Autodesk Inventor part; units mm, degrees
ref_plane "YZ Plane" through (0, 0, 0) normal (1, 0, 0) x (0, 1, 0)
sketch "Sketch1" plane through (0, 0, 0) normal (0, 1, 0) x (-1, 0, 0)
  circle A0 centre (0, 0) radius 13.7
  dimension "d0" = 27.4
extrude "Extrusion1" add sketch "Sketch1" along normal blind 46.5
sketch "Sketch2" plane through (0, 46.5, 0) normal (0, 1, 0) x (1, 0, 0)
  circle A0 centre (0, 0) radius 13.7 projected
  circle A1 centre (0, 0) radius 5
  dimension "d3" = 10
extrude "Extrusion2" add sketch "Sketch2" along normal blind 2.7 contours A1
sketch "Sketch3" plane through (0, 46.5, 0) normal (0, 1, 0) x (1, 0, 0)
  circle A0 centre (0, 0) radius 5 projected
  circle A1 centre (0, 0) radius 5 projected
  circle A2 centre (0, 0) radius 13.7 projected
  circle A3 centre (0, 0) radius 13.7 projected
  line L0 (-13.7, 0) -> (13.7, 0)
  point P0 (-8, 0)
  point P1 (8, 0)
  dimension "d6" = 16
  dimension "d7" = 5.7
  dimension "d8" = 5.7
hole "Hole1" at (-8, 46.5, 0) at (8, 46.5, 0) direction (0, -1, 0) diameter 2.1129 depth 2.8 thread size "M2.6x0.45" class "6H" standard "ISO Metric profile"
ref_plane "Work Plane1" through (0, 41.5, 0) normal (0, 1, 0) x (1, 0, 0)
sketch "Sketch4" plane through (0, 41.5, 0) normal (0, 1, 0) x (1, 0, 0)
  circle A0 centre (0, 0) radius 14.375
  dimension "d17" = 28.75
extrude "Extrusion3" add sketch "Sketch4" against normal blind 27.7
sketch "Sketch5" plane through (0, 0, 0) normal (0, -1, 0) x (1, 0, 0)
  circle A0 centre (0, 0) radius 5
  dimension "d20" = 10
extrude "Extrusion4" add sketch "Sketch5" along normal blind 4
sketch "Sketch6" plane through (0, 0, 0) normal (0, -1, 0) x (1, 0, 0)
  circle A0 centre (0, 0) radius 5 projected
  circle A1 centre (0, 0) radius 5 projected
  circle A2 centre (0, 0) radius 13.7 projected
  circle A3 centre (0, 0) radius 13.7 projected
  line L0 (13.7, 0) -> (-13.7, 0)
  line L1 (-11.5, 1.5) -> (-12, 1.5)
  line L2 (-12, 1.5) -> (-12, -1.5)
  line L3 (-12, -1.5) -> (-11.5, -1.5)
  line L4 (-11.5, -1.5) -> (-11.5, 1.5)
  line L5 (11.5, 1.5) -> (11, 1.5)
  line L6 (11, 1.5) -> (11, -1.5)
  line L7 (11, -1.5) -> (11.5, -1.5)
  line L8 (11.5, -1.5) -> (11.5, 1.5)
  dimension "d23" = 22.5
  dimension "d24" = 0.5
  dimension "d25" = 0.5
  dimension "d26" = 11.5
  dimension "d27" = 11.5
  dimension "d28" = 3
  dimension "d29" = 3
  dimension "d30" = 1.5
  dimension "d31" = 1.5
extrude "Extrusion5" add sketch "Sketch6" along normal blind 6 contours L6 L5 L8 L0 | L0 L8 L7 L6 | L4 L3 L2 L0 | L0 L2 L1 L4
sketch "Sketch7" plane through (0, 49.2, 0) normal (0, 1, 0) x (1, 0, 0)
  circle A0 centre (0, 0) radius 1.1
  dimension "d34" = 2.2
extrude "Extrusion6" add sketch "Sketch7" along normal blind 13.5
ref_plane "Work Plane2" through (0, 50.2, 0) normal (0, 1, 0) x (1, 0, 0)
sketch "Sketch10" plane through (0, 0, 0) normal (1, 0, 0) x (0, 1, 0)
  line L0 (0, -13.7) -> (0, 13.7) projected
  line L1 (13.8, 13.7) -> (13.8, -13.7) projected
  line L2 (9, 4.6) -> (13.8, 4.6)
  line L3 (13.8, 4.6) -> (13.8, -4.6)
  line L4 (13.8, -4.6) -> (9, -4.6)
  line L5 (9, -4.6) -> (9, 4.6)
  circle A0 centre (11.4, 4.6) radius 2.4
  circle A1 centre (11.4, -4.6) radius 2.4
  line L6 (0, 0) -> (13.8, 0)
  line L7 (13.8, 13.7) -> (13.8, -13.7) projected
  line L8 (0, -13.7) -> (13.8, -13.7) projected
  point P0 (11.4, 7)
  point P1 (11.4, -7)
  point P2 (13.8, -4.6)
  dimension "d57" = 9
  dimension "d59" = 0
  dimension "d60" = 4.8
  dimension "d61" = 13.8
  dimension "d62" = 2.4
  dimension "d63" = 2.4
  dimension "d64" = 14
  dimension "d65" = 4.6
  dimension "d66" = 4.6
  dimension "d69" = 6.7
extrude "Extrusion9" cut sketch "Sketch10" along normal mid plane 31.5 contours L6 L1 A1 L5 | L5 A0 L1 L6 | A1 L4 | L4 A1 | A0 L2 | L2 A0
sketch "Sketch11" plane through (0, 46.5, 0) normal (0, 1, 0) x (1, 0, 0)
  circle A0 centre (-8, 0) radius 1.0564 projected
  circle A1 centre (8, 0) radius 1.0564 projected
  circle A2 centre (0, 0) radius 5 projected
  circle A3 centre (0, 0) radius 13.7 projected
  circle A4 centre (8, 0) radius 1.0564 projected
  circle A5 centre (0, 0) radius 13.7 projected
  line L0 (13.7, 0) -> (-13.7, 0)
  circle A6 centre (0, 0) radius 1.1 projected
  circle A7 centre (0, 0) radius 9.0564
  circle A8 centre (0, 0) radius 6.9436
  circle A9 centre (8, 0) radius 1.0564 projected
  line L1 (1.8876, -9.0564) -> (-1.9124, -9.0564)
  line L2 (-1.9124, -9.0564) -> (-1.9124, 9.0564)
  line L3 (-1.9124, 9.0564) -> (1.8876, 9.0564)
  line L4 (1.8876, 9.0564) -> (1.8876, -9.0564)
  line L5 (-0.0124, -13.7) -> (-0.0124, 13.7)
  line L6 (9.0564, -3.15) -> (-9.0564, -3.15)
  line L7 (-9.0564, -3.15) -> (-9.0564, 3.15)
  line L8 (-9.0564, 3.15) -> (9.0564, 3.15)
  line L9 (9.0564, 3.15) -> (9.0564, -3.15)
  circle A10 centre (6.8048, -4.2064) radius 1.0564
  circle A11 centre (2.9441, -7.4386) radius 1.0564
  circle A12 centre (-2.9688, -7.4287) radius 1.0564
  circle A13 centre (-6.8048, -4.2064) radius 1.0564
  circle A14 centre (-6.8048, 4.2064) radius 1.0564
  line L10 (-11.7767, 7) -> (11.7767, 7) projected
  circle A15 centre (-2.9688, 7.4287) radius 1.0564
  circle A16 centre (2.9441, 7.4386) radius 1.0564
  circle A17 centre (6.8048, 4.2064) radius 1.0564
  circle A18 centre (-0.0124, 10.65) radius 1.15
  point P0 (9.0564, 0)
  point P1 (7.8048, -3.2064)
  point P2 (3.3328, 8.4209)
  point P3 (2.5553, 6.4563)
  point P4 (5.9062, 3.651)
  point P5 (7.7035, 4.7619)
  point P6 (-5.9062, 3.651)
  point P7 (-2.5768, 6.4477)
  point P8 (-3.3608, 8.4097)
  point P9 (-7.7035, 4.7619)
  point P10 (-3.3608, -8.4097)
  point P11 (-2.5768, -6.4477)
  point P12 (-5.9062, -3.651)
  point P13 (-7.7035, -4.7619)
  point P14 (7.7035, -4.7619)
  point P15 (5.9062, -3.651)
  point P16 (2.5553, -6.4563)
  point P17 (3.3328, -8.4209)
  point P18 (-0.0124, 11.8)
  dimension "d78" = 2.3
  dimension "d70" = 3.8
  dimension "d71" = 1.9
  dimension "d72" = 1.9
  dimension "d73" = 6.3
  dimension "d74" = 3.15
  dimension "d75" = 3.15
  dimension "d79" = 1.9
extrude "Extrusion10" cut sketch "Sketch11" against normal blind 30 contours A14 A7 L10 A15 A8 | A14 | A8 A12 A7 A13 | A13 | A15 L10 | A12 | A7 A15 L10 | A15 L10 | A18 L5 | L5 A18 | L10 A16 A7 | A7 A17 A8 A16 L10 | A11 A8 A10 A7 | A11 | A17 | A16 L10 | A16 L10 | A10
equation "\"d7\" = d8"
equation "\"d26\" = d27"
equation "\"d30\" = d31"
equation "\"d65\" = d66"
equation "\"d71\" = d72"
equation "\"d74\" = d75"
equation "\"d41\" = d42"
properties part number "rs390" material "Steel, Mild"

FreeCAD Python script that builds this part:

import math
import FreeCAD as App
import Part
import Sketcher

V = App.Vector
Q = App.Units.Quantity

doc = App.newDocument("Part")
params = doc.addObject("Spreadsheet::Sheet", "Params")
for row, (alias, value) in enumerate([
    ("sketch1_diameter", "27.4 mm"),
    ("pad1_length", "46.5 mm"),
    ("sketch2_diameter", "10 mm"),
    ("pad2_length", "2.7 mm"),
    ("hole_diameter", "2.1129 mm"),
    ("hole_depth", "2.8 mm"),
    ("sketch4_diameter", "28.75 mm"),
    ("pad3_length", "27.7 mm"),
    ("sketch5_diameter", "10 mm"),
    ("pad4_length", "4 mm"),
    ("sketch6_height", "3 mm"),
    ("sketch6_width", "0.5 mm"),
    ("pad5_length", "6 mm"),
    ("sketch7_diameter", "2.2 mm"),
    ("pad6_length", "13.5 mm"),
    ("sketch8_radius", "2.4 mm"),
    ("pocket1_length", "31.5 mm"),
    ("sketch9_diameter", "2.3 mm"),
    ("pocket2_length", "30 mm"),
], start=1):
    params.set(f"A{row}", alias)
    params.set(f"B{row}", "=" + value)
    params.setAlias(f"B{row}", alias)

body = doc.addObject("PartDesign::Body", "Body")

# Sketch on XZ plane
sketch1 = body.newObject("Sketcher::SketchObject", "Sketch")
sketch1.AttachmentSupport = (doc.getObject("XZ_Plane"), [""])
sketch1.MapMode = "FlatFace"
sketch1.addGeometry(Part.Circle(V(0, 0, 0), V(0, 0, 1), 13.7), False)
sketch1.addConstraint(Sketcher.Constraint("Coincident", 0, 3, -1, 1))
sketch1.addConstraint(Sketcher.Constraint("Diameter", 0, Q("27.4 mm")))
sketch1.setExpression("Constraints[1]", "Params.sketch1_diameter")
pad1 = body.newObject("PartDesign::Pad", "Pad")
pad1.Profile = sketch1
pad1.setExpression("Length", "Params.pad1_length")
pad1.Reversed = True

# Sketch on XZ plane
sketch2 = body.newObject("Sketcher::SketchObject", "Sketch001")
sketch2.AttachmentSupport = (doc.getObject("XZ_Plane"), [""])
sketch2.MapMode = "FlatFace"
sketch2.AttachmentOffset = App.Placement(V(0, 0, -46.5), App.Rotation())
sketch2.addGeometry(Part.Circle(V(0, 0, 0), V(0, 0, 1), 5), False)
sketch2.addConstraint(Sketcher.Constraint("Coincident", 0, 3, -1, 1))
sketch2.addConstraint(Sketcher.Constraint("Diameter", 0, Q("10 mm")))
sketch2.setExpression("Constraints[1]", "Params.sketch2_diameter")
pad2 = body.newObject("PartDesign::Pad", "Pad001")
pad2.Profile = sketch2
pad2.setExpression("Length", "Params.pad2_length")
pad2.Reversed = True

# Sketch on XZ plane
sketch3 = body.newObject("Sketcher::SketchObject", "Sketch002")
sketch3.AttachmentSupport = (doc.getObject("XZ_Plane"), [""])
sketch3.MapMode = "FlatFace"
sketch3.AttachmentOffset = App.Placement(V(0, 0, -46.5), App.Rotation())
sketch3.addGeometry(Part.Circle(V(-8, 0, 0), V(0, 0, 1), 1.05645), False)
sketch3.addGeometry(Part.Circle(V(8, 0, 0), V(0, 0, 1), 1.05645), False)
sketch3.addConstraint(Sketcher.Constraint("Equal", 0, 1))
sketch3.addConstraint(Sketcher.Constraint("Symmetric", 0, 3, 1, 3, -1, 1))
sketch3.addConstraint(Sketcher.Constraint("PointOnObject", 0, 3, -1))
sketch3.addConstraint(Sketcher.Constraint("Diameter", 0, Q("2.113 mm")))
sketch3.addConstraint(Sketcher.Constraint("DistanceX", 0, 3, -1, 1, Q("8 mm")))
doc.recompute()
hole = body.newObject("PartDesign::Hole", "Hole")
hole.Profile = sketch3
hole.ThreadType = "None"
hole.setExpression("Diameter", "Params.hole_diameter")
hole.DepthType = "Dimension"
hole.setExpression("Depth", "Params.hole_depth")
hole.DrillPoint = "Flat"
hole.Reversed = True

# Sketch on XZ plane
sketch4 = body.newObject("Sketcher::SketchObject", "Sketch003")
sketch4.AttachmentSupport = (doc.getObject("XZ_Plane"), [""])
sketch4.MapMode = "FlatFace"
sketch4.AttachmentOffset = App.Placement(V(0, 0, -41.5), App.Rotation())
sketch4.addGeometry(Part.Circle(V(0, 0, 0), V(0, 0, 1), 14.375), False)
sketch4.addConstraint(Sketcher.Constraint("Coincident", 0, 3, -1, 1))
sketch4.addConstraint(Sketcher.Constraint("Diameter", 0, Q("28.75 mm")))
sketch4.setExpression("Constraints[1]", "Params.sketch4_diameter")
pad3 = body.newObject("PartDesign::Pad", "Pad002")
pad3.Profile = sketch4
pad3.setExpression("Length", "Params.pad3_length")

# Sketch on XZ plane
sketch5 = body.newObject("Sketcher::SketchObject", "Sketch004")
sketch5.AttachmentSupport = (doc.getObject("XZ_Plane"), [""])
sketch5.MapMode = "FlatFace"
sketch5.addGeometry(Part.Circle(V(0, 0, 0), V(0, 0, 1), 5), False)
sketch5.addConstraint(Sketcher.Constraint("Coincident", 0, 3, -1, 1))
sketch5.addConstraint(Sketcher.Constraint("Diameter", 0, Q("10 mm")))
sketch5.setExpression("Constraints[1]", "Params.sketch5_diameter")
pad4 = body.newObject("PartDesign::Pad", "Pad003")
pad4.Profile = sketch5
pad4.setExpression("Length", "Params.pad4_length")

# Sketch on XZ plane
sketch6 = body.newObject("Sketcher::SketchObject", "Sketch005")
sketch6.AttachmentSupport = (doc.getObject("XZ_Plane"), [""])
sketch6.MapMode = "FlatFace"
sketch6.addGeometry(Part.LineSegment(V(11, 1.5, 0), V(11, -1.5, 0)), False)
sketch6.addGeometry(Part.LineSegment(V(11, -1.5, 0), V(11.5, -1.5, 0)), False)
sketch6.addGeometry(Part.LineSegment(V(11.5, -1.5, 0), V(11.5, 1.5, 0)), False)
sketch6.addGeometry(Part.LineSegment(V(11.5, 1.5, 0), V(11, 1.5, 0)), False)
sketch6.addGeometry(Part.LineSegment(V(-11.5, -1.5, 0), V(-11.5, 1.5, 0)), False)
sketch6.addGeometry(Part.LineSegment(V(-11.5, 1.5, 0), V(-12, 1.5, 0)), False)
sketch6.addGeometry(Part.LineSegment(V(-12, 1.5, 0), V(-12, -1.5, 0)), False)
sketch6.addGeometry(Part.LineSegment(V(-12, -1.5, 0), V(-11.5, -1.5, 0)), False)
sketch6.addConstraint(Sketcher.Constraint("Coincident", 0, 2, 1, 1))
sketch6.addConstraint(Sketcher.Constraint("Coincident", 1, 2, 2, 1))
sketch6.addConstraint(Sketcher.Constraint("Coincident", 2, 2, 3, 1))
sketch6.addConstraint(Sketcher.Constraint("Coincident", 3, 2, 0, 1))
sketch6.addConstraint(Sketcher.Constraint("Coincident", 4, 2, 5, 1))
sketch6.addConstraint(Sketcher.Constraint("Coincident", 5, 2, 6, 1))
sketch6.addConstraint(Sketcher.Constraint("Coincident", 6, 2, 7, 1))
sketch6.addConstraint(Sketcher.Constraint("Coincident", 7, 2, 4, 1))
sketch6.addConstraint(Sketcher.Constraint("Vertical", 0))
sketch6.addConstraint(Sketcher.Constraint("Horizontal", 1))
sketch6.addConstraint(Sketcher.Constraint("Vertical", 2))
sketch6.addConstraint(Sketcher.Constraint("Horizontal", 3))
sketch6.addConstraint(Sketcher.Constraint("Vertical", 4))
sketch6.addConstraint(Sketcher.Constraint("Horizontal", 5))
sketch6.addConstraint(Sketcher.Constraint("Vertical", 6))
sketch6.addConstraint(Sketcher.Constraint("Horizontal", 7))
sketch6.addConstraint(Sketcher.Constraint("Symmetric", 1, 2, 4, 2, -1, 1))
sketch6.addConstraint(Sketcher.Constraint("Horizontal", 3, 2, 4, 2))
sketch6.addConstraint(Sketcher.Constraint("Horizontal", 1, 2, 6, 2))
sketch6.addConstraint(Sketcher.Constraint("Equal", 3, 5))
sketch6.addConstraint(Sketcher.Constraint("DistanceY", 0, 2, 0, 1, Q("3 mm")))
sketch6.addConstraint(Sketcher.Constraint("DistanceX", 1, 1, 1, 2, Q("0.5 mm")))
sketch6.addConstraint(Sketcher.Constraint("DistanceX", -1, 1, 1, 2, Q("11.5 mm")))
sketch6.setExpression("Constraints[20]", "Params.sketch6_height")
sketch6.setExpression("Constraints[21]", "Params.sketch6_width")
pad5 = body.newObject("PartDesign::Pad", "Pad004")
pad5.Profile = sketch6
pad5.setExpression("Length", "Params.pad5_length")

# Sketch on XZ plane
sketch7 = body.newObject("Sketcher::SketchObject", "Sketch006")
sketch7.AttachmentSupport = (doc.getObject("XZ_Plane"), [""])
sketch7.MapMode = "FlatFace"
sketch7.AttachmentOffset = App.Placement(V(0, 0, -49.2), App.Rotation())
sketch7.addGeometry(Part.Circle(V(0, 0, 0), V(0, 0, 1), 1.1), False)
sketch7.addConstraint(Sketcher.Constraint("Coincident", 0, 3, -1, 1))
sketch7.addConstraint(Sketcher.Constraint("Diameter", 0, Q("2.2 mm")))
sketch7.setExpression("Constraints[1]", "Params.sketch7_diameter")
pad6 = body.newObject("PartDesign::Pad", "Pad005")
pad6.Profile = sketch7
pad6.setExpression("Length", "Params.pad6_length")
pad6.Reversed = True

# Sketch on YZ plane
sketch8 = body.newObject("Sketcher::SketchObject", "Sketch007")
sketch8.AttachmentSupport = (doc.getObject("YZ_Plane"), [""])
sketch8.MapMode = "FlatFace"
sketch8.addGeometry(Part.LineSegment(V(13.8, -4.6, 0), V(13.8, 4.6, 0)), False)
sketch8.addGeometry(Part.ArcOfCircle(Part.Circle(V(11.4, 4.6, 0), V(0, 0, 1), 2.4), math.radians(0), math.radians(180)), False)
sketch8.addGeometry(Part.LineSegment(V(9, 4.6, 0), V(9, -4.6, 0)), False)
sketch8.addGeometry(Part.ArcOfCircle(Part.Circle(V(11.4, -4.6, 0), V(0, 0, 1), 2.4), math.radians(180), math.radians(360)), False)
sketch8.addConstraint(Sketcher.Constraint("Tangent", 0, 2, 1, 1))
sketch8.addConstraint(Sketcher.Constraint("Tangent", 1, 2, 2, 1))
sketch8.addConstraint(Sketcher.Constraint("Tangent", 2, 2, 3, 1))
sketch8.addConstraint(Sketcher.Constraint("Tangent", 3, 2, 0, 1))
sketch8.addConstraint(Sketcher.Constraint("Vertical", 0))
sketch8.addConstraint(Sketcher.Constraint("Vertical", 2))
sketch8.addConstraint(Sketcher.Constraint("Radius", 1, Q("2.4 mm")))
sketch8.addConstraint(Sketcher.Constraint("DistanceX", -1, 1, 1, 2, Q("9 mm")))
sketch8.addConstraint(Sketcher.Constraint("DistanceY", -1, 1, 1, 3, Q("4.6 mm")))
sketch8.addConstraint(Sketcher.Constraint("DistanceY", 3, 3, -1, 1, Q("4.6 mm")))
sketch8.setExpression("Constraints[6]", "Params.sketch8_radius")
pocket1 = body.newObject("PartDesign::Pocket", "Pocket")
pocket1.Profile = sketch8
pocket1.setExpression("Length", "Params.pocket1_length")
pocket1.Midplane = True

# Sketch on XZ plane
sketch9 = body.newObject("Sketcher::SketchObject", "Sketch008")
sketch9.AttachmentSupport = (doc.getObject("XZ_Plane"), [""])
sketch9.MapMode = "FlatFace"
sketch9.AttachmentOffset = App.Placement(V(0, 0, -46.5), App.Rotation())
sketch9.addGeometry(Part.ArcOfCircle(Part.Circle(V(-6.8048, -4.2064, 0), V(0, 0, 1), 1.0564), math.radians(31.722362), math.radians(211.722361)), False)
sketch9.addGeometry(Part.ArcOfCircle(Part.Circle(V(0, 0, 0), V(0, 0, 1), 6.9436), math.radians(-148.277638), math.radians(-111.783588)), False)
sketch9.addGeometry(Part.ArcOfCircle(Part.Circle(V(-2.9688, -7.4287, 0), V(0, 0, 1), 1.0564), math.radians(-111.783591), math.radians(68.216412)), False)
sketch9.addGeometry(Part.ArcOfCircle(Part.Circle(V(0, 0, 0), V(0, 0, 1), 9.0564), math.radians(-148.277638), math.radians(-111.783588)), False)
sketch9.addGeometry(Part.ArcOfCircle(Part.Circle(V(0, 0, 0), V(0, 0, 1), 6.9436), math.radians(111.783588), math.radians(148.277638)), False)
sketch9.addGeometry(Part.ArcOfCircle(Part.Circle(V(-6.8048, 4.2064, 0), V(0, 0, 1), 1.0564), math.radians(148.277637), math.radians(328.277638)), False)
sketch9.addGeometry(Part.ArcOfCircle(Part.Circle(V(0, 0, 0), V(0, 0, 1), 9.0564), math.radians(111.783588), math.radians(148.277637)), False)
sketch9.addGeometry(Part.ArcOfCircle(Part.Circle(V(-2.9688, 7.4287, 0), V(0, 0, 1), 1.0564), math.radians(-68.216412), math.radians(111.783585)), False)
sketch9.addGeometry(Part.Circle(V(-0.0124, -10.65, 0), V(0, 0, 1), 1.15), False)
sketch9.addGeometry(Part.ArcOfCircle(Part.Circle(V(2.9441, -7.4386, 0), V(0, 0, 1), 1.0564), math.radians(111.593007), math.radians(291.593007)), False)
sketch9.addGeometry(Part.ArcOfCircle(Part.Circle(V(0, 0, 0), V(0, 0, 1), 6.9436), math.radians(-68.406993), math.radians(-31.722362)), False)
sketch9.addGeometry(Part.ArcOfCircle(Part.Circle(V(6.8048, -4.2064, 0), V(0, 0, 1), 1.0564), math.radians(-31.722363), math.radians(148.277638)), False)
sketch9.addGeometry(Part.ArcOfCircle(Part.Circle(V(0, 0, 0), V(0, 0, 1), 9.0564), math.radians(-68.406993), math.radians(-31.722363)), False)
sketch9.addGeometry(Part.ArcOfCircle(Part.Circle(V(0, 0, 0), V(0, 0, 1), 6.9436), math.radians(31.722362), math.radians(68.406992)), False)
sketch9.addGeometry(Part.ArcOfCircle(Part.Circle(V(2.9441, 7.4386, 0), V(0, 0, 1), 1.0564), math.radians(68.406993), math.radians(248.406993)), False)
sketch9.addGeometry(Part.ArcOfCircle(Part.Circle(V(0, 0, 0), V(0, 0, 1), 9.0564), math.radians(31.722362), math.radians(68.406993)), False)
sketch9.addGeometry(Part.ArcOfCircle(Part.Circle(V(6.8048, 4.2064, 0), V(0, 0, 1), 1.0564), math.radians(-148.277638), math.radians(31.722362)), False)
sketch9.addConstraint(Sketcher.Constraint("Tangent", 0, 1, 1, 1))
sketch9.addConstraint(Sketcher.Constraint("Tangent", 1, 2, 2, 2))
sketch9.addConstraint(Sketcher.Constraint("Tangent", 2, 1, 3, 2))
sketch9.addConstraint(Sketcher.Constraint("Tangent", 3, 1, 0, 2))
sketch9.addConstraint(Sketcher.Constraint("Tangent", 4, 2, 5, 2))
sketch9.addConstraint(Sketcher.Constraint("Tangent", 5, 1, 6, 2))
sketch9.addConstraint(Sketcher.Constraint("Tangent", 6, 1, 7, 2))
sketch9.addConstraint(Sketcher.Constraint("Tangent", 7, 1, 4, 1))
sketch9.addConstraint(Sketcher.Constraint("Tangent", 9, 1, 10, 1))
sketch9.addConstraint(Sketcher.Constraint("Tangent", 10, 2, 11, 2))
sketch9.addConstraint(Sketcher.Constraint("Tangent", 11, 1, 12, 2))
sketch9.addConstraint(Sketcher.Constraint("Tangent", 12, 1, 9, 2))
sketch9.addConstraint(Sketcher.Constraint("Tangent", 13, 2, 14, 2))
sketch9.addConstraint(Sketcher.Constraint("Tangent", 14, 1, 15, 2))
sketch9.addConstraint(Sketcher.Constraint("Tangent", 15, 1, 16, 2))
sketch9.addConstraint(Sketcher.Constraint("Tangent", 16, 1, 13, 1))
sketch9.addConstraint(Sketcher.Constraint("Coincident", 1, 3, -1, 1))
sketch9.addConstraint(Sketcher.Constraint("Coincident", 3, 3, -1, 1))
sketch9.addConstraint(Sketcher.Constraint("Coincident", 4, 3, -1, 1))
sketch9.addConstraint(Sketcher.Constraint("Coincident", 6, 3, -1, 1))
sketch9.addConstraint(Sketcher.Constraint("Coincident", 10, 3, -1, 1))
sketch9.addConstraint(Sketcher.Constraint("Coincident", 12, 3, -1, 1))
sketch9.addConstraint(Sketcher.Constraint("Coincident", 13, 3, -1, 1))
sketch9.addConstraint(Sketcher.Constraint("Coincident", 15, 3, -1, 1))
sketch9.addConstraint(Sketcher.Constraint("Equal", 1, 4))
sketch9.addConstraint(Sketcher.Constraint("Equal", 2, 5))
sketch9.addConstraint(Sketcher.Constraint("Equal", 7, 9))
sketch9.addConstraint(Sketcher.Constraint("Equal", 4, 10))
sketch9.addConstraint(Sketcher.Constraint("Equal", 10, 13))
sketch9.addConstraint(Sketcher.Constraint("Equal", 11, 14))
sketch9.addConstraint(Sketcher.Constraint("Horizontal", 0, 3, 11, 3))
sketch9.addConstraint(Sketcher.Constraint("Horizontal", 5, 3, 16, 3))
sketch9.addConstraint(Sketcher.Constraint("Vertical", 0, 3, 5, 3))
sketch9.addConstraint(Sketcher.Constraint("Vertical", 2, 3, 7, 3))
sketch9.addConstraint(Sketcher.Constraint("Vertical", 9, 3, 14, 3))
sketch9.addConstraint(Sketcher.Constraint("Diameter", 8, Q("2.3 mm")))
sketch9.addConstraint(Sketcher.Constraint("Radius", 0, Q("1.0564 mm")))
sketch9.addConstraint(Sketcher.Constraint("Radius", 1, Q("6.9436 mm")))
sketch9.addConstraint(Sketcher.Constraint("DistanceY", 8, 3, -1, 1, Q("10.65 mm")))
sketch9.addConstraint(Sketcher.Constraint("DistanceY", 9, 3, 2, 3, Q("0.01 mm")))
sketch9.addConstraint(Sketcher.Constraint("DistanceY", 9, 1, 11, 3, Q("2.25 mm")))
sketch9.addConstraint(Sketcher.Constraint("DistanceY", 16, 1, 14, 1, Q("4.77 mm")))
sketch9.addConstraint(Sketcher.Constraint("DistanceX", 8, 3, -1, 1, Q("0.0124 mm")))
sketch9.setExpression("Constraints[35]", "Params.sketch9_diameter")
pocket2 = body.newObject("PartDesign::Pocket", "Pocket001")
pocket2.Profile = sketch9
pocket2.setExpression("Length", "Params.pocket2_length")
pocket2.Reversed = True

doc.recompute()
